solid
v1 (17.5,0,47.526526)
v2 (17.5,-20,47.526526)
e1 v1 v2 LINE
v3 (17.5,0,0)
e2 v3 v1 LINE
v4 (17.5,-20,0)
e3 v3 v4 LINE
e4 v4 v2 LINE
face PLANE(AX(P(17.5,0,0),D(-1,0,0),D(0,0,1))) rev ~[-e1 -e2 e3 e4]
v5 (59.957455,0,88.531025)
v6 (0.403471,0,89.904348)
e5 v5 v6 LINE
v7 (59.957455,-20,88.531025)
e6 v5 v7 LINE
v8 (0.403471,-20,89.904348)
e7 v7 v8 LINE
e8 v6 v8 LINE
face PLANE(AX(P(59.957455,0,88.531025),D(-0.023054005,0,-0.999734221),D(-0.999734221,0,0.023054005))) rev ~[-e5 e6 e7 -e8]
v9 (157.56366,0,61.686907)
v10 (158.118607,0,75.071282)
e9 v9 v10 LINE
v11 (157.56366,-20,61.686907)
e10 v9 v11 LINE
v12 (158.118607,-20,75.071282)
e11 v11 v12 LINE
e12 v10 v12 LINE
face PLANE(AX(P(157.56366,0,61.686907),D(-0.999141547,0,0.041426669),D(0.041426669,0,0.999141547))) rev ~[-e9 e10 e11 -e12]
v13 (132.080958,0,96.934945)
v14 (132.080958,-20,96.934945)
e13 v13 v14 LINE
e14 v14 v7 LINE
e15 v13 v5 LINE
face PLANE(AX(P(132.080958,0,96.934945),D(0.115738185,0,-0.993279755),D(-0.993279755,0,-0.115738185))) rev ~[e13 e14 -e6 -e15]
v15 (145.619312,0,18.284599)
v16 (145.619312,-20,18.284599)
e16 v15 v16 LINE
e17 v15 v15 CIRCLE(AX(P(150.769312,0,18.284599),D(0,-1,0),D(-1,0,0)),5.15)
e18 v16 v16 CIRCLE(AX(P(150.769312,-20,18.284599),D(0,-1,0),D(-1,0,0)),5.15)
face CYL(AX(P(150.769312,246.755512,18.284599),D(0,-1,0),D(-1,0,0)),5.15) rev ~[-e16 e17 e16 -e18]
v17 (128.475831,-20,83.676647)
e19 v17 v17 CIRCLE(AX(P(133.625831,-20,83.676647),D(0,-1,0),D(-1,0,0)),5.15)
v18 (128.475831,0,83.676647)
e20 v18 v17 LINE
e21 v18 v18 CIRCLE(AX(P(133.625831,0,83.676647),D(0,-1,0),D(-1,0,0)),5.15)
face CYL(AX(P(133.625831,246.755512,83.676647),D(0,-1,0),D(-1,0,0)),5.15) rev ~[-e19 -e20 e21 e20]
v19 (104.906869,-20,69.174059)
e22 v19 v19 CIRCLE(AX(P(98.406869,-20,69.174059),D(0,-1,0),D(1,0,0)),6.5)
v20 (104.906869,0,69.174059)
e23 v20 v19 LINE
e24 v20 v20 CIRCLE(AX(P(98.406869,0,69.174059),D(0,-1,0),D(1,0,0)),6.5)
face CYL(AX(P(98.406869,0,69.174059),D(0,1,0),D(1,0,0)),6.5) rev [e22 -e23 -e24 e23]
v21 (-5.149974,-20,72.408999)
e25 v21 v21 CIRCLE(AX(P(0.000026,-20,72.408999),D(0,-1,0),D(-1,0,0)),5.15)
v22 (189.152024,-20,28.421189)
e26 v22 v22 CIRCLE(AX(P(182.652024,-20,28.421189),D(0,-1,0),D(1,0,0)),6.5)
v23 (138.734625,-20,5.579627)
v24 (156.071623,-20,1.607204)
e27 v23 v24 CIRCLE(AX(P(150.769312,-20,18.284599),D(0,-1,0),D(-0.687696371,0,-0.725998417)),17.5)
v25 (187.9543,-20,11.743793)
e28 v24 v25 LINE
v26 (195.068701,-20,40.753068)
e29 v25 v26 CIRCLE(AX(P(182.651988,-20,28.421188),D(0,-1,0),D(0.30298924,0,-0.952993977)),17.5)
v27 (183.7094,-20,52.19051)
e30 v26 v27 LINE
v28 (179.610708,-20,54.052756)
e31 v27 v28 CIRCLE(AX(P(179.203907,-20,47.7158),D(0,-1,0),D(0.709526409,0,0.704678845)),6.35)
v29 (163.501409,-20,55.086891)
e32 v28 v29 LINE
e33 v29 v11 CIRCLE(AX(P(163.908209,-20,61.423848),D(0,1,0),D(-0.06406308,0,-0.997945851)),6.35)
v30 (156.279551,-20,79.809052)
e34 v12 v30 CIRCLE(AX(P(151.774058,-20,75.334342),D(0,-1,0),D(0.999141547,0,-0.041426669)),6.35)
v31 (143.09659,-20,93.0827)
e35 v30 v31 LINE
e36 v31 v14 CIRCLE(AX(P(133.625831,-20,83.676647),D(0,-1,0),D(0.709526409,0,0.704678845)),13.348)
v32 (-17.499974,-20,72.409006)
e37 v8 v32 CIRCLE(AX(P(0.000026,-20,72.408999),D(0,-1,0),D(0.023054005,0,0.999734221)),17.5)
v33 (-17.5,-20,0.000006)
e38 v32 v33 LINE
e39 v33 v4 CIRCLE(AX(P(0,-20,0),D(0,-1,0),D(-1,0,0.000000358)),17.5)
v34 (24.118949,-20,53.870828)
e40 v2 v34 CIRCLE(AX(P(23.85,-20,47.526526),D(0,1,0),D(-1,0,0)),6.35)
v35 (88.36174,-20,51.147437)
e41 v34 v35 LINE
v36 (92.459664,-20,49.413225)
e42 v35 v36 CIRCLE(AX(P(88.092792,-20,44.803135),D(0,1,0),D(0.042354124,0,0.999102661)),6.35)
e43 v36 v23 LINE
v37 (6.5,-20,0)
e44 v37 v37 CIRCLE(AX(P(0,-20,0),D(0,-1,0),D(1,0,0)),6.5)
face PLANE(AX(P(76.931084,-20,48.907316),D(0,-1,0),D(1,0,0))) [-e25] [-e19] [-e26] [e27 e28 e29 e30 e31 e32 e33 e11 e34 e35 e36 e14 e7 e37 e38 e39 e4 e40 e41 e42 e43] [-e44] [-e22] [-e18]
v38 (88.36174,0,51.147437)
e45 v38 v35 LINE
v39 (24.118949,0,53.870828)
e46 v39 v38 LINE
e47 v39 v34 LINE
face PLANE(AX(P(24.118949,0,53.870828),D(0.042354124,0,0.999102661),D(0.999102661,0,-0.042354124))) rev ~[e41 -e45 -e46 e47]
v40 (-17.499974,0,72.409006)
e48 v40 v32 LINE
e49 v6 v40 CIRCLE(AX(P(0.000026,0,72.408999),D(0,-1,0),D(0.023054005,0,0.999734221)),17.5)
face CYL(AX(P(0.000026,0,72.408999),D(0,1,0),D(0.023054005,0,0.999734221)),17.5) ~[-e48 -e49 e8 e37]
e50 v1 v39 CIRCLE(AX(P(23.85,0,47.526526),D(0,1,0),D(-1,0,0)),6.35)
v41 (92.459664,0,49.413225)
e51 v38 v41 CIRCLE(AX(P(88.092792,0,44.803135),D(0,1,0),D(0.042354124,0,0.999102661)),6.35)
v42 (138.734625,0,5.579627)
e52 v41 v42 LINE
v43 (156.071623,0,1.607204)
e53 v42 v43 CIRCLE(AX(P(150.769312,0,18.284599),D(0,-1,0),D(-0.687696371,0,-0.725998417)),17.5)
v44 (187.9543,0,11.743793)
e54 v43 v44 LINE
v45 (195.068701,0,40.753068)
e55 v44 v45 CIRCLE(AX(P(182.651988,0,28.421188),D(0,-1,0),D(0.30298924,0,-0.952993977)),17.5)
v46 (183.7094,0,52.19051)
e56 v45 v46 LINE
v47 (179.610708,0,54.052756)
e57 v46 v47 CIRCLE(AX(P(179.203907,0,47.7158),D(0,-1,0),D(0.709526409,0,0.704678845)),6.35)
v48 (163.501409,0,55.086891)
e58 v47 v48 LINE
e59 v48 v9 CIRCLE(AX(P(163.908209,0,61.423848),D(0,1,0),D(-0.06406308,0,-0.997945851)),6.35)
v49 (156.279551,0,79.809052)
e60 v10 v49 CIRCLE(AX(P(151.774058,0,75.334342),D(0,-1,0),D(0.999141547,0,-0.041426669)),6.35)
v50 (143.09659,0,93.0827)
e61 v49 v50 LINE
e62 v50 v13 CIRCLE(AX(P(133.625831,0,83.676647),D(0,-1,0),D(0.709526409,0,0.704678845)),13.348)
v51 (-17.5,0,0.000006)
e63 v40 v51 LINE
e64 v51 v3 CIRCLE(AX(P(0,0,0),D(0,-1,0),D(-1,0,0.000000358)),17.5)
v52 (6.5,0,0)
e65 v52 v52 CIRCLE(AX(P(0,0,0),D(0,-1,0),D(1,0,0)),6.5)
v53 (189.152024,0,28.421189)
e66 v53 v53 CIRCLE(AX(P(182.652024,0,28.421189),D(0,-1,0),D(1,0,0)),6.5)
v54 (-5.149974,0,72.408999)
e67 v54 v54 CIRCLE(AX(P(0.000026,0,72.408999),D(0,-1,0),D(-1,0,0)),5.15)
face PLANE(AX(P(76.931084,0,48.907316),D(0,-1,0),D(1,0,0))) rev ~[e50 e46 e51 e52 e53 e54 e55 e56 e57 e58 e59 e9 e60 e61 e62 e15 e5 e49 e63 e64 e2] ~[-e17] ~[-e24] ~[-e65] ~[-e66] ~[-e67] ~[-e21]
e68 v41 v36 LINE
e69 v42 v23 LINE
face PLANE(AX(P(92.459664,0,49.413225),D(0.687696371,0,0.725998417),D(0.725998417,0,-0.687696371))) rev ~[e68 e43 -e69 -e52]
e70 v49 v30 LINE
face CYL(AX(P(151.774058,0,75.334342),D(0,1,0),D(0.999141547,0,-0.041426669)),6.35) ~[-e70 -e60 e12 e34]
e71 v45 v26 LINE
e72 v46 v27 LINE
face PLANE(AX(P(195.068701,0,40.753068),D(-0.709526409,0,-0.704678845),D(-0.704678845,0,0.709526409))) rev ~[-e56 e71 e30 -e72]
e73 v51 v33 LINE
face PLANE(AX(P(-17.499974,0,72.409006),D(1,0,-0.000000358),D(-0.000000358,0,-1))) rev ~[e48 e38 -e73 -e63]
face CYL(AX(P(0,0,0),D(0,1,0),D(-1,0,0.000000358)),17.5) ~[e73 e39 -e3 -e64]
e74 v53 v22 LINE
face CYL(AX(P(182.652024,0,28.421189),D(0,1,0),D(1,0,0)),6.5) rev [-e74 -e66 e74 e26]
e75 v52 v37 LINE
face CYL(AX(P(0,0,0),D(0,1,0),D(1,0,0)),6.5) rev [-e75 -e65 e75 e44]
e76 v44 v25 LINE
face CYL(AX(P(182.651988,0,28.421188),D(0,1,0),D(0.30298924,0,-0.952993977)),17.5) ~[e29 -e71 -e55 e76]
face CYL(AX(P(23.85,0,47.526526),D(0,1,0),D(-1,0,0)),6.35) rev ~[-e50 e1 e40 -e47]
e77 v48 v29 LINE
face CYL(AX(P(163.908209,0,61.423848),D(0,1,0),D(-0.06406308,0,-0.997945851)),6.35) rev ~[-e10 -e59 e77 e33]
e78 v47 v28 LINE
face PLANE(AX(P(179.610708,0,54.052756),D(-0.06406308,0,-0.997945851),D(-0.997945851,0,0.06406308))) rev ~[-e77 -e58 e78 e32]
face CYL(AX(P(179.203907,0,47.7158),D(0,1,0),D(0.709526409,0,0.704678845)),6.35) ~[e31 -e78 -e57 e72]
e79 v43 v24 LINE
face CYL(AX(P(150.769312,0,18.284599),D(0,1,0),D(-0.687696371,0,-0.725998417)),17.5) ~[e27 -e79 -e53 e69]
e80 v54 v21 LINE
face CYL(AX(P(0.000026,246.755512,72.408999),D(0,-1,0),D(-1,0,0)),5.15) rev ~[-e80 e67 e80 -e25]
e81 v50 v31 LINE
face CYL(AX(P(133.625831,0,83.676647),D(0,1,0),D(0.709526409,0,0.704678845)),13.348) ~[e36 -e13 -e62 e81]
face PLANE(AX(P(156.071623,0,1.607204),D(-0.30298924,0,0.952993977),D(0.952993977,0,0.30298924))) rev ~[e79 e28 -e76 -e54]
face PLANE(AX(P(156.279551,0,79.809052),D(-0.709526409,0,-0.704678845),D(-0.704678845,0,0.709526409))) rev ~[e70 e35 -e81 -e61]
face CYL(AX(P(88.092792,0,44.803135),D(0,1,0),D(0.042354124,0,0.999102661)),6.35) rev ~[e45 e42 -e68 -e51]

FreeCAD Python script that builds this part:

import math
import FreeCAD as App
import Part
import Sketcher

V = App.Vector

doc = App.newDocument("Part")
params = doc.addObject("Spreadsheet::Sheet", "Params")
for row, (alias, value) in enumerate([
    ("sketch1_diameter", "13 mm"),
    ("sketch1_diameter2", "13 mm"),
    ("sketch1_diameter3", "13 mm"),
    ("sketch1_radius", "17.5 mm"),
    ("sketch1_radius2", "17.5 mm"),
    ("pad1_length", "20 mm"),
    ("sketch2_diameter", "10.3 mm"),
    ("hole_diameter", "10.3 mm"),
], start=1):
    params.set(f"A{row}", alias)
    params.set(f"B{row}", "=" + value)
    params.setAlias(f"B{row}", alias)

body = doc.addObject("PartDesign::Body", "Body")

sketch1 = body.newObject("Sketcher::SketchObject", "Sketch")
sketch1.AttachmentSupport = (doc.getObject("XZ_Plane"), [""])
sketch1.MapMode = "FlatFace"
sketch1.addGeometry(Part.LineSegment(V(132.080958, 96.934945, 0), V(59.957455, 88.531025, 0)), False)
sketch1.addGeometry(Part.LineSegment(V(59.957455, 88.531025, 0), V(0.403471, 89.904348, 0)), False)
sketch1.addGeometry(Part.ArcOfCircle(Part.Circle(V(0.000026, 72.408999, 0), V(0, 0, 1), 17.5), math.radians(88.678986), math.radians(179.999979)), False)
sketch1.addGeometry(Part.LineSegment(V(-17.499974, 72.409006, 0), V(-17.5, 0.000006, 0)), False)
sketch1.addGeometry(Part.ArcOfCircle(Part.Circle(V(0, 0, 0), V(0, 0, 1), 17.5), math.radians(179.999979), math.radians(360)), False)
sketch1.addGeometry(Part.LineSegment(V(17.5, 0, 0), V(17.5, 47.526526, 0)), False)
sketch1.addGeometry(Part.ArcOfCircle(Part.Circle(V(23.85, 47.526526, 0), V(0, 0, 1), 6.35), math.radians(87.572561), math.radians(180)), False)
sketch1.addGeometry(Part.LineSegment(V(24.118949, 53.870828, 0), V(88.36174, 51.147437, 0)), False)
sketch1.addGeometry(Part.ArcOfCircle(Part.Circle(V(88.092792, 44.803135, 0), V(0, 0, 1), 6.35), math.radians(46.551968), math.radians(87.572561)), False)
sketch1.addGeometry(Part.LineSegment(V(92.459664, 49.413225, 0), V(138.734625, 5.579627, 0)), False)
sketch1.addGeometry(Part.ArcOfCircle(Part.Circle(V(150.769312, 18.284599, 0), V(0, 0, 1), 17.5), math.radians(-133.448032), math.radians(-72.362767)), False)
sketch1.addGeometry(Part.LineSegment(V(156.071623, 1.607204, 0), V(187.9543, 11.743793, 0)), False)
sketch1.addGeometry(Part.ArcOfCircle(Part.Circle(V(182.651988, 28.421188, 0), V(0, 0, 1), 17.5), math.radians(-72.362767), math.radians(44.803604)), False)
sketch1.addGeometry(Part.LineSegment(V(195.068701, 40.753068, 0), V(183.7094, 52.19051, 0)), False)
sketch1.addGeometry(Part.ArcOfCircle(Part.Circle(V(179.203907, 47.7158, 0), V(0, 0, 1), 6.35), math.radians(44.803604), math.radians(86.326941)), False)
sketch1.addGeometry(Part.LineSegment(V(179.610708, 54.052756, 0), V(163.501409, 55.086891, 0)), False)
sketch1.addGeometry(Part.ArcOfCircle(Part.Circle(V(163.908209, 61.423848, 0), V(0, 0, 1), 6.35), math.radians(177.625747), math.radians(266.326941)), False)
sketch1.addGeometry(Part.LineSegment(V(157.56366, 61.686907, 0), V(158.118607, 75.071282, 0)), False)
sketch1.addGeometry(Part.ArcOfCircle(Part.Circle(V(151.774058, 75.334342, 0), V(0, 0, 1), 6.35), math.radians(-2.374253), math.radians(44.803604)), False)
sketch1.addGeometry(Part.LineSegment(V(156.279551, 79.809052, 0), V(143.09659, 93.0827, 0)), False)
sketch1.addGeometry(Part.ArcOfCircle(Part.Circle(V(133.625831, 83.676647, 0), V(0, 0, 1), 13.348), math.radians(44.803604), math.radians(96.646204)), False)
sketch1.addGeometry(Part.Circle(V(0, 0, 0), V(0, 0, 1), 6.5), False)
sketch1.addGeometry(Part.Circle(V(182.652024, 28.421189, 0), V(0, 0, 1), 6.5), False)
sketch1.addGeometry(Part.Circle(V(98.406869, 69.174059, 0), V(0, 0, 1), 6.5), False)
sketch1.addConstraint(Sketcher.Constraint("Coincident", 0, 2, 1, 1))
sketch1.addConstraint(Sketcher.Constraint("Coincident", 1, 2, 2, 1))
sketch1.addConstraint(Sketcher.Constraint("Coincident", 2, 2, 3, 1))
sketch1.addConstraint(Sketcher.Constraint("Coincident", 3, 2, 4, 1))
sketch1.addConstraint(Sketcher.Constraint("Coincident", 4, 2, 5, 1))
sketch1.addConstraint(Sketcher.Constraint("Coincident", 5, 2, 6, 2))
sketch1.addConstraint(Sketcher.Constraint("Coincident", 6, 1, 7, 1))
sketch1.addConstraint(Sketcher.Constraint("Coincident", 7, 2, 8, 2))
sketch1.addConstraint(Sketcher.Constraint("Coincident", 8, 1, 9, 1))
sketch1.addConstraint(Sketcher.Constraint("Coincident", 9, 2, 10, 1))
sketch1.addConstraint(Sketcher.Constraint("Coincident", 10, 2, 11, 1))
sketch1.addConstraint(Sketcher.Constraint("Coincident", 11, 2, 12, 1))
sketch1.addConstraint(Sketcher.Constraint("Coincident", 12, 2, 13, 1))
sketch1.addConstraint(Sketcher.Constraint("Coincident", 13, 2, 14, 1))
sketch1.addConstraint(Sketcher.Constraint("Coincident", 14, 2, 15, 1))
sketch1.addConstraint(Sketcher.Constraint("Coincident", 15, 2, 16, 2))
sketch1.addConstraint(Sketcher.Constraint("Coincident", 16, 1, 17, 1))
sketch1.addConstraint(Sketcher.Constraint("Coincident", 17, 2, 18, 1))
sketch1.addConstraint(Sketcher.Constraint("Coincident", 18, 2, 19, 1))
sketch1.addConstraint(Sketcher.Constraint("Coincident", 19, 2, 20, 1))
sketch1.addConstraint(Sketcher.Constraint("Coincident", 20, 2, 0, 1))
sketch1.addConstraint(Sketcher.Constraint("Vertical", 5))
sketch1.addConstraint(Sketcher.Constraint("Coincident", 4, 3, -1, 1))
sketch1.addConstraint(Sketcher.Constraint("Coincident", 21, 3, -1, 1))
sketch1.addConstraint(Sketcher.Constraint("PointOnObject", 4, 2, -1))
sketch1.addConstraint(Sketcher.Constraint("Diameter", 21, 13.0))
sketch1.addConstraint(Sketcher.Constraint("Diameter", 22, 13.0))
sketch1.addConstraint(Sketcher.Constraint("Diameter", 23, 13.0))
sketch1.addConstraint(Sketcher.Constraint("Radius", 2, 17.5))
sketch1.addConstraint(Sketcher.Constraint("Radius", 4, 17.5))
sketch1.addConstraint(Sketcher.Constraint("Radius", 10, 17.5))
sketch1.addConstraint(Sketcher.Constraint("Radius", 12, 17.5))
sketch1.addConstraint(Sketcher.Constraint("Radius", 6, 6.35))
sketch1.addConstraint(Sketcher.Constraint("Radius", 8, 6.35))
sketch1.addConstraint(Sketcher.Constraint("Radius", 14, 6.35))
sketch1.addConstraint(Sketcher.Constraint("Radius", 16, 6.35))
sketch1.addConstraint(Sketcher.Constraint("Radius", 18, 6.35))
sketch1.addConstraint(Sketcher.Constraint("Radius", 20, 13.348))
sketch1.addConstraint(Sketcher.Constraint("Distance", 3, 72.408999))
sketch1.addConstraint(Sketcher.Constraint("DistanceY", -1, 1, 2, 3, 72.408999))
sketch1.addConstraint(Sketcher.Constraint("DistanceX", 9, 2, 10, 2, 17.336998))
sketch1.addConstraint(Sketcher.Constraint("DistanceY", -1, 1, 10, 3, 18.284599))
sketch1.addConstraint(Sketcher.Constraint("DistanceY", -1, 1, 14, 3, 47.7158))
sketch1.addConstraint(Sketcher.Constraint("DistanceX", -1, 1, 11, 2, 187.9543))
sketch1.addConstraint(Sketcher.Constraint("DistanceX", -1, 1, 12, 2, 195.068701))
sketch1.addConstraint(Sketcher.Constraint("DistanceX", -1, 1, 13, 2, 183.7094))
sketch1.addConstraint(Sketcher.Constraint("DistanceY", -1, 1, 19, 2, 93.0827))
sketch1.addConstraint(Sketcher.Constraint("DistanceY", 16, 3, 20, 3, 22.252799))
sketch1.addConstraint(Sketcher.Constraint("DistanceY", 6, 3, 0, 2, 41.004499))
sketch1.addConstraint(Sketcher.Constraint("DistanceY", 6, 3, 6, 1, 6.344302))
sketch1.addConstraint(Sketcher.Constraint("DistanceY", 5, 2, 6, 1, 6.344302))
sketch1.addConstraint(Sketcher.Constraint("DistanceY", 8, 3, 7, 2, 6.344302))
sketch1.addConstraint(Sketcher.Constraint("DistanceY", 8, 1, 0, 2, 39.1178))
sketch1.addConstraint(Sketcher.Constraint("DistanceX", 9, 2, 22, 3, 43.917399))
sketch1.addConstraint(Sketcher.Constraint("DistanceX", 14, 3, 14, 2, 0.406801))
sketch1.addConstraint(Sketcher.Constraint("DistanceX", 16, 3, 14, 2, 15.702498))
sketch1.addConstraint(Sketcher.Constraint("DistanceX", 15, 2, 16, 3, 0.406801))
sketch1.addConstraint(Sketcher.Constraint("DistanceX", 17, 2, 15, 2, 5.382802))
sketch1.addConstraint(Sketcher.Constraint("DistanceY", 20, 3, 20, 2, 13.258298))
sketch1.addConstraint(Sketcher.Constraint("DistanceX", 20, 2, 18, 3, 19.6931))
sketch1.addConstraint(Sketcher.Constraint("Distance", 0, 72.61147))
sketch1.addConstraint(Sketcher.Constraint("Distance", 7, 64.300491))
sketch1.addConstraint(Sketcher.Constraint("DistanceY", 5, 1, 5, 2, 47.526526))
sketch1.addConstraint(Sketcher.Constraint("DistanceX", -1, 1, 8, 3, 88.092792))
sketch1.addConstraint(Sketcher.Constraint("DistanceX", -1, 1, 10, 3, 150.769312))
sketch1.addConstraint(Sketcher.Constraint("DistanceX", -1, 1, 12, 3, 182.651988))
sketch1.addConstraint(Sketcher.Constraint("DistanceX", -1, 1, 16, 3, 163.908209))
sketch1.addConstraint(Sketcher.Constraint("DistanceX", -1, 1, 18, 3, 151.774058))
sketch1.addConstraint(Sketcher.Constraint("DistanceY", -1, 1, 18, 3, 75.334342))
sketch1.addConstraint(Sketcher.Constraint("DistanceY", -1, 1, 22, 3, 28.421189))
sketch1.addConstraint(Sketcher.Constraint("DistanceX", -1, 1, 23, 3, 98.406869))
sketch1.addConstraint(Sketcher.Constraint("DistanceY", -1, 1, 23, 3, 69.174059))
sketch1.addConstraint(Sketcher.Constraint("DistanceX", -1, 1, 1, 2, 0.403471))
sketch1.addConstraint(Sketcher.Constraint("DistanceY", -1, 1, 1, 2, 89.904348))
sketch1.addConstraint(Sketcher.Constraint("DistanceY", -1, 1, 15, 2, 55.086891))
sketch1.addConstraint(Sketcher.Constraint("DistanceX", -1, 1, 16, 1, 157.56366))
sketch1.addConstraint(Sketcher.Constraint("DistanceX", -1, 1, 18, 2, 156.279551))
sketch1.addConstraint(Sketcher.Constraint("DistanceY", 10, 3, 12, 3, 10.136589))
sketch1.addConstraint(Sketcher.Constraint("DistanceY", 6, 3, 2, 2, 24.88248))
sketch1.addConstraint(Sketcher.Constraint("DistanceY", 9, 2, 12, 3, 22.841561))
sketch1.setExpression("Constraints[25]", "Params.sketch1_diameter")
sketch1.setExpression("Constraints[26]", "Params.sketch1_diameter2")
sketch1.setExpression("Constraints[27]", "Params.sketch1_diameter3")
sketch1.setExpression("Constraints[28]", "Params.sketch1_radius")
sketch1.setExpression("Constraints[29]", "Params.sketch1_radius2")
pad1 = body.newObject("PartDesign::Pad", "Pad")
pad1.Profile = sketch1
pad1.setExpression("Length", "Params.pad1_length")

sketch2 = body.newObject("Sketcher::SketchObject", "Sketch001")
sketch2.AttachmentSupport = (doc.getObject("XZ_Plane"), [""])
sketch2.MapMode = "FlatFace"
sketch2.addGeometry(Part.Circle(V(0, 72, 0), V(0, 0, 1), 5), False)
sketch2.addGeometry(Part.Circle(V(151, 18, 0), V(0, 0, 1), 5), False)
sketch2.addGeometry(Part.Circle(V(134, 84, 0), V(0, 0, 1), 5), False)
sketch2.addConstraint(Sketcher.Constraint("Equal", 0, 1))
sketch2.addConstraint(Sketcher.Constraint("Equal", 1, 2))
sketch2.addConstraint(Sketcher.Constraint("Diameter", 0, 10.3))
sketch2.addConstraint(Sketcher.Constraint("DistanceY", -1, 1, 0, 3, 72.408999))
sketch2.addConstraint(Sketcher.Constraint("DistanceY", -1, 1, 1, 3, 18.284599))
sketch2.addConstraint(Sketcher.Constraint("DistanceX", -1, 1, 1, 3, 150.769312))
sketch2.addConstraint(Sketcher.Constraint("DistanceX", -1, 1, 2, 3, 133.625831))
sketch2.addConstraint(Sketcher.Constraint("DistanceY", 1, 3, 2, 3, 65.392048))
sketch2.addConstraint(Sketcher.Constraint("DistanceX", 0, 3, 1, 3, 150.769286))
sketch2.setExpression("Constraints[2]", "Params.sketch2_diameter")
doc.recompute()
hole = body.newObject("PartDesign::Hole", "Hole")
hole.Profile = sketch2
hole.ThreadType = "None"
hole.setExpression("Diameter", "Params.hole_diameter")
hole.DepthType = "ThroughAll"
hole.Reversed = True

doc.recompute()
